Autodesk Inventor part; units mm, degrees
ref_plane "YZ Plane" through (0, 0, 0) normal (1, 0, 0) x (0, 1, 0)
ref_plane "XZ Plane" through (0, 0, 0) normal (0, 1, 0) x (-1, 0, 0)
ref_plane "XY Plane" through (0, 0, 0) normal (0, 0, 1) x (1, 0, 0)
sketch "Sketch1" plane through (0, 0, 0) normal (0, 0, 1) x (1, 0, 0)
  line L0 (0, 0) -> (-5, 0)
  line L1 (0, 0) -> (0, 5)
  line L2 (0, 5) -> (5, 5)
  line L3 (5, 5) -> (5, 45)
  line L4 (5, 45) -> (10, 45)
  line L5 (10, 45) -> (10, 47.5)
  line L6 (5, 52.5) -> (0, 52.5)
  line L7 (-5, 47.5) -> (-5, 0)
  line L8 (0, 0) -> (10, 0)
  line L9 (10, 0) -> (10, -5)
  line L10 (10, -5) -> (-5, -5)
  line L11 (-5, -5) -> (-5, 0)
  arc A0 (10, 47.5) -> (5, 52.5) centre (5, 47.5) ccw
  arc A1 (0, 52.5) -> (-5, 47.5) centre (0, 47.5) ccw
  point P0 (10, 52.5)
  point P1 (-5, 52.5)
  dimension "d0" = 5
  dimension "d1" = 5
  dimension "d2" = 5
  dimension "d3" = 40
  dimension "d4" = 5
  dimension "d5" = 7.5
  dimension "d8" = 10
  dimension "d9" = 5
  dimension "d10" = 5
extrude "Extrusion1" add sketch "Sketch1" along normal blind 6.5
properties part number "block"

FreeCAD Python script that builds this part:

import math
import FreeCAD as App
import Part
import Sketcher
Q = App.Units.Quantity

doc = App.newDocument("Part")
body = doc.addObject("PartDesign::Body", "Body")

# Sketch on XY plane
sketch1 = doc.addObject("Sketcher::SketchObject", "Sketch")
body.addObject(sketch1)
sketch1.AttachmentSupport = (doc.XY_Plane, [""])
sketch1.MapMode = "FlatFace"
sketch1.addGeometry(Part.LineSegment(App.Vector(10, 0, 0), App.Vector(0, 0, 0)), False)
sketch1.addGeometry(Part.LineSegment(App.Vector(0, 0, 0), App.Vector(0, 5, 0)), False)
sketch1.addGeometry(Part.LineSegment(App.Vector(0, 5, 0), App.Vector(5, 5, 0)), False)
sketch1.addGeometry(Part.LineSegment(App.Vector(5, 5, 0), App.Vector(5, 45, 0)), False)
sketch1.addGeometry(Part.LineSegment(App.Vector(5, 45, 0), App.Vector(10, 45, 0)), False)
sketch1.addGeometry(Part.LineSegment(App.Vector(10, 45, 0), App.Vector(10, 47.5, 0)), False)
sketch1.addGeometry(Part.ArcOfCircle(Part.Circle(App.Vector(5, 47.5, 0), App.Vector(0, 0, 1), 5), math.radians(0), math.radians(90)), False)
sketch1.addGeometry(Part.LineSegment(App.Vector(5, 52.5, 0), App.Vector(0, 52.5, 0)), False)
sketch1.addGeometry(Part.ArcOfCircle(Part.Circle(App.Vector(0, 47.5, 0), App.Vector(0, 0, 1), 5), math.radians(90), math.radians(180)), False)
sketch1.addGeometry(Part.LineSegment(App.Vector(-5, 47.5, 0), App.Vector(-5, -5, 0)), False)
sketch1.addGeometry(Part.LineSegment(App.Vector(-5, -5, 0), App.Vector(10, -5, 0)), False)
sketch1.addGeometry(Part.LineSegment(App.Vector(10, -5, 0), App.Vector(10, 0, 0)), False)
sketch1.addConstraint(Sketcher.Constraint("Coincident", 0, 2, 1, 1))
sketch1.addConstraint(Sketcher.Constraint("Coincident", 1, 2, 2, 1))
sketch1.addConstraint(Sketcher.Constraint("Coincident", 2, 2, 3, 1))
sketch1.addConstraint(Sketcher.Constraint("Coincident", 3, 2, 4, 1))
sketch1.addConstraint(Sketcher.Constraint("Coincident", 4, 2, 5, 1))
sketch1.addConstraint(Sketcher.Constraint("Tangent", 5, 2, 6, 1))
sketch1.addConstraint(Sketcher.Constraint("Tangent", 6, 2, 7, 1))
sketch1.addConstraint(Sketcher.Constraint("Tangent", 7, 2, 8, 1))
sketch1.addConstraint(Sketcher.Constraint("Tangent", 8, 2, 9, 1))
sketch1.addConstraint(Sketcher.Constraint("Coincident", 9, 2, 10, 1))
sketch1.addConstraint(Sketcher.Constraint("Coincident", 10, 2, 11, 1))
sketch1.addConstraint(Sketcher.Constraint("Coincident", 11, 2, 0, 1))
sketch1.addConstraint(Sketcher.Constraint("Horizontal", 0))
sketch1.addConstraint(Sketcher.Constraint("Vertical", 1))
sketch1.addConstraint(Sketcher.Constraint("Horizontal", 2))
sketch1.addConstraint(Sketcher.Constraint("Vertical", 3))
sketch1.addConstraint(Sketcher.Constraint("Horizontal", 4))
sketch1.addConstraint(Sketcher.Constraint("Vertical", 5))
sketch1.addConstraint(Sketcher.Constraint("Horizontal", 7))
sketch1.addConstraint(Sketcher.Constraint("Vertical", 9))
sketch1.addConstraint(Sketcher.Constraint("Horizontal", 10))
sketch1.addConstraint(Sketcher.Constraint("Vertical", 11))
sketch1.addConstraint(Sketcher.Constraint("Coincident", 0, 2, -1, 1))
sketch1.addConstraint(Sketcher.Constraint("Equal", 6, 8))
sketch1.addConstraint(Sketcher.Constraint("Symmetric", 2, 2, 9, 2, -1, 1))
sketch1.addConstraint(Sketcher.Constraint("PointOnObject", 8, 3, -2))
sketch1.addConstraint(Sketcher.Constraint("Vertical", 6, 3, 2, 2))
sketch1.addConstraint(Sketcher.Constraint("Vertical", 5, 2, 10, 2))
sketch1.addConstraint(Sketcher.Constraint("Equal", 7, 1))
sketch1.addConstraint(Sketcher.Constraint("Radius", 6, Q("5 mm")))
sketch1.addConstraint(Sketcher.Constraint("DistanceY", 3, 1, 3, 2, Q("40 mm")))
sketch1.addConstraint(Sketcher.Constraint("DistanceY", 3, 2, 6, 2, Q("7.5 mm")))
pad1 = doc.addObject("PartDesign::Pad", "Pad")
body.addObject(pad1)
pad1.Profile = sketch1
pad1.Length = 6.5

doc.recompute()
